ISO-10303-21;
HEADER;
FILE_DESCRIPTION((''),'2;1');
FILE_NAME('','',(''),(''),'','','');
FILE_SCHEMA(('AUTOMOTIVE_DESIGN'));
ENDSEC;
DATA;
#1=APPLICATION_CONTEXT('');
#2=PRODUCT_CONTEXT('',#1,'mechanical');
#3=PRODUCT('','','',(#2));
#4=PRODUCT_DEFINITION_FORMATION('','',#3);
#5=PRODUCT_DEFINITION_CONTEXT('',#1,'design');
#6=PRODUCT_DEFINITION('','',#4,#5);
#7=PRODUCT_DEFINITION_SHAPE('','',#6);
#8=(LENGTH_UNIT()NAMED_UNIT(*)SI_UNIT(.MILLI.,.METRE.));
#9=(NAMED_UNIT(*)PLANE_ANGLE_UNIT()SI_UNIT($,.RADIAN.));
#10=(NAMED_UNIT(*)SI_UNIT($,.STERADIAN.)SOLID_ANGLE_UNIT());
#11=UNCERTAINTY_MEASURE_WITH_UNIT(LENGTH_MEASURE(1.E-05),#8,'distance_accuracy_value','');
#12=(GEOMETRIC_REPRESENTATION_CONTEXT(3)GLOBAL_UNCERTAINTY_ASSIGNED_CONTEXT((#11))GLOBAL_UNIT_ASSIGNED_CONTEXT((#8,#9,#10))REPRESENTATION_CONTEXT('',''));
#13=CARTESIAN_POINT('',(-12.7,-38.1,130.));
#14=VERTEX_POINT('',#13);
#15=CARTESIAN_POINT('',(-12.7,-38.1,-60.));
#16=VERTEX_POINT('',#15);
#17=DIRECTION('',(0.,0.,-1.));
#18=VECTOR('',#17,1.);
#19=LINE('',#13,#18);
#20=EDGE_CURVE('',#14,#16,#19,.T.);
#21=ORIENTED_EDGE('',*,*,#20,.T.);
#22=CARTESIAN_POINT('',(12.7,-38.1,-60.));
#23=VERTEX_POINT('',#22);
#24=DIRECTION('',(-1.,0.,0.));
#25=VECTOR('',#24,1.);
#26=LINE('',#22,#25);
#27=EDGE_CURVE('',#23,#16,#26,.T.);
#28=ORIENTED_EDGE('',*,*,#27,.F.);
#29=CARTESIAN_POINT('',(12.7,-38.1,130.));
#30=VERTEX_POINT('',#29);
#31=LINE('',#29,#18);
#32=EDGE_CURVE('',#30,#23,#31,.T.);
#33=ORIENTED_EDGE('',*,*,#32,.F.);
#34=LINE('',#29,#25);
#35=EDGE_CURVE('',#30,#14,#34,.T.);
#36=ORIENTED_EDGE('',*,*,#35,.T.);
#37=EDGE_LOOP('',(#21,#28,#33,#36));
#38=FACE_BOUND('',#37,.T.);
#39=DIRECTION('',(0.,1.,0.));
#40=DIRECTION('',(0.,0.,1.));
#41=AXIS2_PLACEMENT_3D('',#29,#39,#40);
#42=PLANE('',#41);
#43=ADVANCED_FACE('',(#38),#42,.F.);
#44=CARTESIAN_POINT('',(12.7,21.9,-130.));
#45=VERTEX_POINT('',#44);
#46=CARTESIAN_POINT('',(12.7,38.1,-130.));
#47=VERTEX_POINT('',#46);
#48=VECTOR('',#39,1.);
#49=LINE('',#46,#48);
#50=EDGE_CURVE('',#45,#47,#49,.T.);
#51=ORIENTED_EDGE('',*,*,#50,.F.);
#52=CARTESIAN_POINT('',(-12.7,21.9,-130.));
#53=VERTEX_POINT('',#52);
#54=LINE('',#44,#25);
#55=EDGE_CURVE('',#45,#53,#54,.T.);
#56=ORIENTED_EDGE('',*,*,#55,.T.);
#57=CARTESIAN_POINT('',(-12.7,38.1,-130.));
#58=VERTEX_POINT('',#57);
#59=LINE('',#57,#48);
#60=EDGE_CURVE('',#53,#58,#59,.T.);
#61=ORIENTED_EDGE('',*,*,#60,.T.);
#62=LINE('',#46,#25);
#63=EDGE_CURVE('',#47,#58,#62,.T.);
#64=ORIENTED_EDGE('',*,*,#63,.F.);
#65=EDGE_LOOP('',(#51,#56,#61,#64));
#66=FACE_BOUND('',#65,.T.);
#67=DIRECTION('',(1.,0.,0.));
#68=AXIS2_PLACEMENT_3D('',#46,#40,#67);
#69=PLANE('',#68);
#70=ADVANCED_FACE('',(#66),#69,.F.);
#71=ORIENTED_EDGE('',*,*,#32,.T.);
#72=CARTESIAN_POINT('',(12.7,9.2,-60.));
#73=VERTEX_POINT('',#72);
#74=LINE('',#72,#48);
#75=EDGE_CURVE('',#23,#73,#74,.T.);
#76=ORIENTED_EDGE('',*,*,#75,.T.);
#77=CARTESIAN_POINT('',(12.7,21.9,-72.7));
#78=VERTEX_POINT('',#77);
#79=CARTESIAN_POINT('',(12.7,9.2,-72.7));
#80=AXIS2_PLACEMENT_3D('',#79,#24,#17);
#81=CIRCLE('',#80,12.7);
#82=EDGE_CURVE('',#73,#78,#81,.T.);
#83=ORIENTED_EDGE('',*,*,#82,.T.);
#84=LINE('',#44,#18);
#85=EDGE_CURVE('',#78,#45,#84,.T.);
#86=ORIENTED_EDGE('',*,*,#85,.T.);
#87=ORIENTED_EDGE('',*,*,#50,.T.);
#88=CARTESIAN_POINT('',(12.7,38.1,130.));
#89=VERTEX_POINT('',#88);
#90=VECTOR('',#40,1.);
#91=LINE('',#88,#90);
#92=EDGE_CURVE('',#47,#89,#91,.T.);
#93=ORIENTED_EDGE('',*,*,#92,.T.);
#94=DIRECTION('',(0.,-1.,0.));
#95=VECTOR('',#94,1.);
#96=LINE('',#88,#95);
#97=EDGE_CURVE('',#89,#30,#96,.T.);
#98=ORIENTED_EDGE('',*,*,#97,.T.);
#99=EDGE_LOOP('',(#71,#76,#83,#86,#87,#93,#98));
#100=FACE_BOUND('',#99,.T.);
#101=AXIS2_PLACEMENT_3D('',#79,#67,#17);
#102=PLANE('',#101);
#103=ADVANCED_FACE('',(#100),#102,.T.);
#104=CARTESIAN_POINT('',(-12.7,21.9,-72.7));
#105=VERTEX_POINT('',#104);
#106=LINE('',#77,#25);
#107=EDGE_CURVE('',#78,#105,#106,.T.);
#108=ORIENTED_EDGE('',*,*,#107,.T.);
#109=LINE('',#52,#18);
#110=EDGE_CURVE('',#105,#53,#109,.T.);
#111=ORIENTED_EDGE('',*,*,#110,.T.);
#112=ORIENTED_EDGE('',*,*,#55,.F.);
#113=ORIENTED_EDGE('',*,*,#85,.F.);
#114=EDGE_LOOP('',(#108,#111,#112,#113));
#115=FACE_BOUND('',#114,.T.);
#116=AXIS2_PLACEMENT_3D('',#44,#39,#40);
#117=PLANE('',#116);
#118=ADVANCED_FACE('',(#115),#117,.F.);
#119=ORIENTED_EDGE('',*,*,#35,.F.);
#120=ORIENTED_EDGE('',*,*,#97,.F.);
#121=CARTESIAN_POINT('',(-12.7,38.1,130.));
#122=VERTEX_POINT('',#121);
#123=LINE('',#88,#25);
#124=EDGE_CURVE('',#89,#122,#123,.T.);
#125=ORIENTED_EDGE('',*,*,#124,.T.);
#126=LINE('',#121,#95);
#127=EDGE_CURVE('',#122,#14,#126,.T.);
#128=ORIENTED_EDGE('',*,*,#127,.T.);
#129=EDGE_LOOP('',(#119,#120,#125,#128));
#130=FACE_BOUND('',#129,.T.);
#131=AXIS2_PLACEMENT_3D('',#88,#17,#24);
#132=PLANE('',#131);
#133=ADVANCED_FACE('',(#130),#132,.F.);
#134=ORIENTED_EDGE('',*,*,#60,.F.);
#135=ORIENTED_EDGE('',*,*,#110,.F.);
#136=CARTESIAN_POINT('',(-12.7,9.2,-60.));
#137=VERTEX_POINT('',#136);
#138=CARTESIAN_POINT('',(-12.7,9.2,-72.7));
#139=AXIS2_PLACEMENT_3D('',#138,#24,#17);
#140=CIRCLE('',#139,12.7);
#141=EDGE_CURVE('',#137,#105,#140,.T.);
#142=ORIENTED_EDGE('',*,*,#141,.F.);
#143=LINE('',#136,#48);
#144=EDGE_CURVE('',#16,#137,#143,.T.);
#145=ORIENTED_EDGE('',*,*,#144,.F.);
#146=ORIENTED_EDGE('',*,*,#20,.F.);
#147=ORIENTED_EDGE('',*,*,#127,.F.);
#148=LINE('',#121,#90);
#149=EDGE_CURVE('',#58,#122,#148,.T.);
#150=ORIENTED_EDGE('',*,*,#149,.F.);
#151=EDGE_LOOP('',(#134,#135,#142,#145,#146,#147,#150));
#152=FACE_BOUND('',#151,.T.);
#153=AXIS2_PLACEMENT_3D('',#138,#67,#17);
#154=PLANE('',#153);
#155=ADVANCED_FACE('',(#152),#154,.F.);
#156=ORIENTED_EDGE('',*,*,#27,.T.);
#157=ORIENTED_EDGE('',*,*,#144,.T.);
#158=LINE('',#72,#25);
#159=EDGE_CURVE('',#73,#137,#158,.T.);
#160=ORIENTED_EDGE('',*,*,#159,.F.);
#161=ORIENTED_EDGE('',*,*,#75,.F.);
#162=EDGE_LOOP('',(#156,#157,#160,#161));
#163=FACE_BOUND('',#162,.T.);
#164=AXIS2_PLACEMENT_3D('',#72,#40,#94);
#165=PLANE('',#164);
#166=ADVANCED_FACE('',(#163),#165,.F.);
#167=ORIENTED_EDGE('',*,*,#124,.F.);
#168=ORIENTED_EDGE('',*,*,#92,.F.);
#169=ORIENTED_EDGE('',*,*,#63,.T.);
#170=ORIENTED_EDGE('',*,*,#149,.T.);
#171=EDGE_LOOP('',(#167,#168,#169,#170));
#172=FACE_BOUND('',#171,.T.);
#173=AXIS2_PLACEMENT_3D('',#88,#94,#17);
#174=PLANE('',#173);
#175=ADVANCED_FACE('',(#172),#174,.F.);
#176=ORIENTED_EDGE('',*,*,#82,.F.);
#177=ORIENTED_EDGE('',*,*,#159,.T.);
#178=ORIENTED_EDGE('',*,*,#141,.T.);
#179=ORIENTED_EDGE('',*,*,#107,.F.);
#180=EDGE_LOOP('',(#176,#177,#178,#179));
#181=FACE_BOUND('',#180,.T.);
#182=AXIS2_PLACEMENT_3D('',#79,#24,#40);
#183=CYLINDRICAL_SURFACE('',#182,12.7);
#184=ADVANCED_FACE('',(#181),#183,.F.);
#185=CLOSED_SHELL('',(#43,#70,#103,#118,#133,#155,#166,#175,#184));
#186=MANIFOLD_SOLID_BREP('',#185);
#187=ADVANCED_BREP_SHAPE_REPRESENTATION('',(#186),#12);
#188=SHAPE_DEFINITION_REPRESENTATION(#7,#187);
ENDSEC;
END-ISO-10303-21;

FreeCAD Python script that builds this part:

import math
import FreeCAD as App
import Part
import Sketcher

V = App.Vector
Q = App.Units.Quantity

doc = App.newDocument("Part")
params = doc.addObject("Spreadsheet::Sheet", "Params")
for row, (alias, value) in enumerate([
    ("sketch1_radius", "12.7 mm"),
    ("sketch1_height", "260 mm"),
    ("sketch1_height2", "190 mm"),
    ("sketch1_width", "76.2 mm"),
    ("sketch1_width2", "47.3 mm"),
    ("pad1_length", "25.4 mm"),
], start=1):
    params.set(f"A{row}", alias)
    params.set(f"B{row}", "=" + value)
    params.setAlias(f"B{row}", alias)

body = doc.addObject("PartDesign::Body", "Body")

# Sketch on YZ plane
sketch1 = body.newObject("Sketcher::SketchObject", "Sketch")
sketch1.AttachmentSupport = (doc.getObject("YZ_Plane"), [""])
sketch1.MapMode = "FlatFace"
sketch1.addGeometry([
    Part.LineSegment(V(38.1, -130, 0), V(38.1, 130, 0)),  # 0
    Part.LineSegment(V(38.1, 130, 0), V(-38.1, 130, 0)),  # 1
    Part.LineSegment(V(-38.1, 130, 0), V(-38.1, -60, 0)),  # 2
    Part.LineSegment(V(-38.1, -60, 0), V(9.2, -60, 0)),  # 3
    Part.ArcOfCircle(Part.Circle(V(9.2, -72.7, 0), V(0, 0, 1), 12.7), math.radians(0), math.radians(90)),  # 4
    Part.LineSegment(V(21.9, -72.7, 0), V(21.9, -130, 0)),  # 5
    Part.LineSegment(V(21.9, -130, 0), V(38.1, -130, 0)),  # 6
], False)
sketch1.addConstraint([
    Sketcher.Constraint("Coincident", 0, 2, 1, 1),
    Sketcher.Constraint("Coincident", 1, 2, 2, 1),
    Sketcher.Constraint("Coincident", 2, 2, 3, 1),
    Sketcher.Constraint("Tangent", 3, 2, 4, 2),
    Sketcher.Constraint("Tangent", 4, 1, 5, 1),
    Sketcher.Constraint("Coincident", 5, 2, 6, 1),
    Sketcher.Constraint("Coincident", 6, 2, 0, 1),
    Sketcher.Constraint("Vertical", 0),
    Sketcher.Constraint("Horizontal", 1),
    Sketcher.Constraint("Vertical", 2),
    Sketcher.Constraint("Horizontal", 3),
    Sketcher.Constraint("Vertical", 5),
    Sketcher.Constraint("Horizontal", 6),
    Sketcher.Constraint("Symmetric", 1, 2, 6, 2, -1, 1),
    Sketcher.Constraint("Radius", 4, Q("12.7 mm")),
    Sketcher.Constraint("DistanceY", 0, 1, 0, 2, Q("260 mm")),
    Sketcher.Constraint("DistanceY", 2, 2, 2, 1, Q("190 mm")),
    Sketcher.Constraint("DistanceX", 1, 2, 1, 1, Q("76.2 mm")),
    Sketcher.Constraint("DistanceX", 3, 1, 3, 2, Q("47.3 mm")),
])
sketch1.setExpression("Constraints[14]", "Params.sketch1_radius")
sketch1.setExpression("Constraints[15]", "Params.sketch1_height")
sketch1.setExpression("Constraints[16]", "Params.sketch1_height2")
sketch1.setExpression("Constraints[17]", "Params.sketch1_width")
sketch1.setExpression("Constraints[18]", "Params.sketch1_width2")
pad1 = body.newObject("PartDesign::Pad", "Pad")
pad1.Profile = sketch1
pad1.setExpression("Length", "Params.pad1_length")
pad1.Midplane = True

doc.recompute()
